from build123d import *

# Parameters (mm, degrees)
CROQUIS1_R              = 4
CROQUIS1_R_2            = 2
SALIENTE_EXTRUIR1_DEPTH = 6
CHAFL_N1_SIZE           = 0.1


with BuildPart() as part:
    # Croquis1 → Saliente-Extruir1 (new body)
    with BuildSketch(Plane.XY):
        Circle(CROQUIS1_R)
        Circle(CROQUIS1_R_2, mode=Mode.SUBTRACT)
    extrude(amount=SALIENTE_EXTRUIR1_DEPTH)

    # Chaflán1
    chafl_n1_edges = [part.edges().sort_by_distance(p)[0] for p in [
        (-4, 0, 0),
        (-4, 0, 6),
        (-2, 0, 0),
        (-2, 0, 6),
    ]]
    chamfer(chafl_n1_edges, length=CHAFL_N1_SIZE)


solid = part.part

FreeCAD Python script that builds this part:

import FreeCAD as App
import Part
import Sketcher
Q = App.Units.Quantity


def edges_at(feature, points):
    """Names of the edges that pass closest to the given points."""
    edges = feature.Shape.Edges
    near = lambda p: min(range(len(edges)), key=lambda i: edges[i].distToShape(Part.Vertex(*p))[0])
    return sorted({f"Edge{near(p) + 1}" for p in points})

doc = App.newDocument("Part")
body = doc.addObject("PartDesign::Body", "Body")

sketch1 = body.newObject("Sketcher::SketchObject", "Sketch")
sketch1.AttachmentSupport = (doc.getObject("XY_Plane"), [""])
sketch1.MapMode = "FlatFace"
sketch1.addGeometry([
    Part.Circle(App.Vector(0, 0, 0), App.Vector(0, 0, 1), 4),
    Part.Circle(App.Vector(0, 0, 0), App.Vector(0, 0, 1), 2),
], False)
sketch1.addConstraint([
    Sketcher.Constraint("Coincident", 0, 3, -1, 1),
    Sketcher.Constraint("Coincident", 1, 3, -1, 1),
    Sketcher.Constraint("Diameter", 0, Q("8 mm")),
    Sketcher.Constraint("Diameter", 1, Q("4 mm")),
])
pad1 = body.newObject("PartDesign::Pad", "Pad")
pad1.Profile = sketch1
pad1.Length = 6
doc.recompute()

chamfer = body.newObject("PartDesign::Chamfer", "Chamfer")
chamfer.Base = (pad1, edges_at(pad1, [
    (-4, 0, 0),
    (-4, 0, 6),
    (-2, 0, 0),
    (-2, 0, 6),
]))
chamfer.Size = 0.1

doc.recompute()
